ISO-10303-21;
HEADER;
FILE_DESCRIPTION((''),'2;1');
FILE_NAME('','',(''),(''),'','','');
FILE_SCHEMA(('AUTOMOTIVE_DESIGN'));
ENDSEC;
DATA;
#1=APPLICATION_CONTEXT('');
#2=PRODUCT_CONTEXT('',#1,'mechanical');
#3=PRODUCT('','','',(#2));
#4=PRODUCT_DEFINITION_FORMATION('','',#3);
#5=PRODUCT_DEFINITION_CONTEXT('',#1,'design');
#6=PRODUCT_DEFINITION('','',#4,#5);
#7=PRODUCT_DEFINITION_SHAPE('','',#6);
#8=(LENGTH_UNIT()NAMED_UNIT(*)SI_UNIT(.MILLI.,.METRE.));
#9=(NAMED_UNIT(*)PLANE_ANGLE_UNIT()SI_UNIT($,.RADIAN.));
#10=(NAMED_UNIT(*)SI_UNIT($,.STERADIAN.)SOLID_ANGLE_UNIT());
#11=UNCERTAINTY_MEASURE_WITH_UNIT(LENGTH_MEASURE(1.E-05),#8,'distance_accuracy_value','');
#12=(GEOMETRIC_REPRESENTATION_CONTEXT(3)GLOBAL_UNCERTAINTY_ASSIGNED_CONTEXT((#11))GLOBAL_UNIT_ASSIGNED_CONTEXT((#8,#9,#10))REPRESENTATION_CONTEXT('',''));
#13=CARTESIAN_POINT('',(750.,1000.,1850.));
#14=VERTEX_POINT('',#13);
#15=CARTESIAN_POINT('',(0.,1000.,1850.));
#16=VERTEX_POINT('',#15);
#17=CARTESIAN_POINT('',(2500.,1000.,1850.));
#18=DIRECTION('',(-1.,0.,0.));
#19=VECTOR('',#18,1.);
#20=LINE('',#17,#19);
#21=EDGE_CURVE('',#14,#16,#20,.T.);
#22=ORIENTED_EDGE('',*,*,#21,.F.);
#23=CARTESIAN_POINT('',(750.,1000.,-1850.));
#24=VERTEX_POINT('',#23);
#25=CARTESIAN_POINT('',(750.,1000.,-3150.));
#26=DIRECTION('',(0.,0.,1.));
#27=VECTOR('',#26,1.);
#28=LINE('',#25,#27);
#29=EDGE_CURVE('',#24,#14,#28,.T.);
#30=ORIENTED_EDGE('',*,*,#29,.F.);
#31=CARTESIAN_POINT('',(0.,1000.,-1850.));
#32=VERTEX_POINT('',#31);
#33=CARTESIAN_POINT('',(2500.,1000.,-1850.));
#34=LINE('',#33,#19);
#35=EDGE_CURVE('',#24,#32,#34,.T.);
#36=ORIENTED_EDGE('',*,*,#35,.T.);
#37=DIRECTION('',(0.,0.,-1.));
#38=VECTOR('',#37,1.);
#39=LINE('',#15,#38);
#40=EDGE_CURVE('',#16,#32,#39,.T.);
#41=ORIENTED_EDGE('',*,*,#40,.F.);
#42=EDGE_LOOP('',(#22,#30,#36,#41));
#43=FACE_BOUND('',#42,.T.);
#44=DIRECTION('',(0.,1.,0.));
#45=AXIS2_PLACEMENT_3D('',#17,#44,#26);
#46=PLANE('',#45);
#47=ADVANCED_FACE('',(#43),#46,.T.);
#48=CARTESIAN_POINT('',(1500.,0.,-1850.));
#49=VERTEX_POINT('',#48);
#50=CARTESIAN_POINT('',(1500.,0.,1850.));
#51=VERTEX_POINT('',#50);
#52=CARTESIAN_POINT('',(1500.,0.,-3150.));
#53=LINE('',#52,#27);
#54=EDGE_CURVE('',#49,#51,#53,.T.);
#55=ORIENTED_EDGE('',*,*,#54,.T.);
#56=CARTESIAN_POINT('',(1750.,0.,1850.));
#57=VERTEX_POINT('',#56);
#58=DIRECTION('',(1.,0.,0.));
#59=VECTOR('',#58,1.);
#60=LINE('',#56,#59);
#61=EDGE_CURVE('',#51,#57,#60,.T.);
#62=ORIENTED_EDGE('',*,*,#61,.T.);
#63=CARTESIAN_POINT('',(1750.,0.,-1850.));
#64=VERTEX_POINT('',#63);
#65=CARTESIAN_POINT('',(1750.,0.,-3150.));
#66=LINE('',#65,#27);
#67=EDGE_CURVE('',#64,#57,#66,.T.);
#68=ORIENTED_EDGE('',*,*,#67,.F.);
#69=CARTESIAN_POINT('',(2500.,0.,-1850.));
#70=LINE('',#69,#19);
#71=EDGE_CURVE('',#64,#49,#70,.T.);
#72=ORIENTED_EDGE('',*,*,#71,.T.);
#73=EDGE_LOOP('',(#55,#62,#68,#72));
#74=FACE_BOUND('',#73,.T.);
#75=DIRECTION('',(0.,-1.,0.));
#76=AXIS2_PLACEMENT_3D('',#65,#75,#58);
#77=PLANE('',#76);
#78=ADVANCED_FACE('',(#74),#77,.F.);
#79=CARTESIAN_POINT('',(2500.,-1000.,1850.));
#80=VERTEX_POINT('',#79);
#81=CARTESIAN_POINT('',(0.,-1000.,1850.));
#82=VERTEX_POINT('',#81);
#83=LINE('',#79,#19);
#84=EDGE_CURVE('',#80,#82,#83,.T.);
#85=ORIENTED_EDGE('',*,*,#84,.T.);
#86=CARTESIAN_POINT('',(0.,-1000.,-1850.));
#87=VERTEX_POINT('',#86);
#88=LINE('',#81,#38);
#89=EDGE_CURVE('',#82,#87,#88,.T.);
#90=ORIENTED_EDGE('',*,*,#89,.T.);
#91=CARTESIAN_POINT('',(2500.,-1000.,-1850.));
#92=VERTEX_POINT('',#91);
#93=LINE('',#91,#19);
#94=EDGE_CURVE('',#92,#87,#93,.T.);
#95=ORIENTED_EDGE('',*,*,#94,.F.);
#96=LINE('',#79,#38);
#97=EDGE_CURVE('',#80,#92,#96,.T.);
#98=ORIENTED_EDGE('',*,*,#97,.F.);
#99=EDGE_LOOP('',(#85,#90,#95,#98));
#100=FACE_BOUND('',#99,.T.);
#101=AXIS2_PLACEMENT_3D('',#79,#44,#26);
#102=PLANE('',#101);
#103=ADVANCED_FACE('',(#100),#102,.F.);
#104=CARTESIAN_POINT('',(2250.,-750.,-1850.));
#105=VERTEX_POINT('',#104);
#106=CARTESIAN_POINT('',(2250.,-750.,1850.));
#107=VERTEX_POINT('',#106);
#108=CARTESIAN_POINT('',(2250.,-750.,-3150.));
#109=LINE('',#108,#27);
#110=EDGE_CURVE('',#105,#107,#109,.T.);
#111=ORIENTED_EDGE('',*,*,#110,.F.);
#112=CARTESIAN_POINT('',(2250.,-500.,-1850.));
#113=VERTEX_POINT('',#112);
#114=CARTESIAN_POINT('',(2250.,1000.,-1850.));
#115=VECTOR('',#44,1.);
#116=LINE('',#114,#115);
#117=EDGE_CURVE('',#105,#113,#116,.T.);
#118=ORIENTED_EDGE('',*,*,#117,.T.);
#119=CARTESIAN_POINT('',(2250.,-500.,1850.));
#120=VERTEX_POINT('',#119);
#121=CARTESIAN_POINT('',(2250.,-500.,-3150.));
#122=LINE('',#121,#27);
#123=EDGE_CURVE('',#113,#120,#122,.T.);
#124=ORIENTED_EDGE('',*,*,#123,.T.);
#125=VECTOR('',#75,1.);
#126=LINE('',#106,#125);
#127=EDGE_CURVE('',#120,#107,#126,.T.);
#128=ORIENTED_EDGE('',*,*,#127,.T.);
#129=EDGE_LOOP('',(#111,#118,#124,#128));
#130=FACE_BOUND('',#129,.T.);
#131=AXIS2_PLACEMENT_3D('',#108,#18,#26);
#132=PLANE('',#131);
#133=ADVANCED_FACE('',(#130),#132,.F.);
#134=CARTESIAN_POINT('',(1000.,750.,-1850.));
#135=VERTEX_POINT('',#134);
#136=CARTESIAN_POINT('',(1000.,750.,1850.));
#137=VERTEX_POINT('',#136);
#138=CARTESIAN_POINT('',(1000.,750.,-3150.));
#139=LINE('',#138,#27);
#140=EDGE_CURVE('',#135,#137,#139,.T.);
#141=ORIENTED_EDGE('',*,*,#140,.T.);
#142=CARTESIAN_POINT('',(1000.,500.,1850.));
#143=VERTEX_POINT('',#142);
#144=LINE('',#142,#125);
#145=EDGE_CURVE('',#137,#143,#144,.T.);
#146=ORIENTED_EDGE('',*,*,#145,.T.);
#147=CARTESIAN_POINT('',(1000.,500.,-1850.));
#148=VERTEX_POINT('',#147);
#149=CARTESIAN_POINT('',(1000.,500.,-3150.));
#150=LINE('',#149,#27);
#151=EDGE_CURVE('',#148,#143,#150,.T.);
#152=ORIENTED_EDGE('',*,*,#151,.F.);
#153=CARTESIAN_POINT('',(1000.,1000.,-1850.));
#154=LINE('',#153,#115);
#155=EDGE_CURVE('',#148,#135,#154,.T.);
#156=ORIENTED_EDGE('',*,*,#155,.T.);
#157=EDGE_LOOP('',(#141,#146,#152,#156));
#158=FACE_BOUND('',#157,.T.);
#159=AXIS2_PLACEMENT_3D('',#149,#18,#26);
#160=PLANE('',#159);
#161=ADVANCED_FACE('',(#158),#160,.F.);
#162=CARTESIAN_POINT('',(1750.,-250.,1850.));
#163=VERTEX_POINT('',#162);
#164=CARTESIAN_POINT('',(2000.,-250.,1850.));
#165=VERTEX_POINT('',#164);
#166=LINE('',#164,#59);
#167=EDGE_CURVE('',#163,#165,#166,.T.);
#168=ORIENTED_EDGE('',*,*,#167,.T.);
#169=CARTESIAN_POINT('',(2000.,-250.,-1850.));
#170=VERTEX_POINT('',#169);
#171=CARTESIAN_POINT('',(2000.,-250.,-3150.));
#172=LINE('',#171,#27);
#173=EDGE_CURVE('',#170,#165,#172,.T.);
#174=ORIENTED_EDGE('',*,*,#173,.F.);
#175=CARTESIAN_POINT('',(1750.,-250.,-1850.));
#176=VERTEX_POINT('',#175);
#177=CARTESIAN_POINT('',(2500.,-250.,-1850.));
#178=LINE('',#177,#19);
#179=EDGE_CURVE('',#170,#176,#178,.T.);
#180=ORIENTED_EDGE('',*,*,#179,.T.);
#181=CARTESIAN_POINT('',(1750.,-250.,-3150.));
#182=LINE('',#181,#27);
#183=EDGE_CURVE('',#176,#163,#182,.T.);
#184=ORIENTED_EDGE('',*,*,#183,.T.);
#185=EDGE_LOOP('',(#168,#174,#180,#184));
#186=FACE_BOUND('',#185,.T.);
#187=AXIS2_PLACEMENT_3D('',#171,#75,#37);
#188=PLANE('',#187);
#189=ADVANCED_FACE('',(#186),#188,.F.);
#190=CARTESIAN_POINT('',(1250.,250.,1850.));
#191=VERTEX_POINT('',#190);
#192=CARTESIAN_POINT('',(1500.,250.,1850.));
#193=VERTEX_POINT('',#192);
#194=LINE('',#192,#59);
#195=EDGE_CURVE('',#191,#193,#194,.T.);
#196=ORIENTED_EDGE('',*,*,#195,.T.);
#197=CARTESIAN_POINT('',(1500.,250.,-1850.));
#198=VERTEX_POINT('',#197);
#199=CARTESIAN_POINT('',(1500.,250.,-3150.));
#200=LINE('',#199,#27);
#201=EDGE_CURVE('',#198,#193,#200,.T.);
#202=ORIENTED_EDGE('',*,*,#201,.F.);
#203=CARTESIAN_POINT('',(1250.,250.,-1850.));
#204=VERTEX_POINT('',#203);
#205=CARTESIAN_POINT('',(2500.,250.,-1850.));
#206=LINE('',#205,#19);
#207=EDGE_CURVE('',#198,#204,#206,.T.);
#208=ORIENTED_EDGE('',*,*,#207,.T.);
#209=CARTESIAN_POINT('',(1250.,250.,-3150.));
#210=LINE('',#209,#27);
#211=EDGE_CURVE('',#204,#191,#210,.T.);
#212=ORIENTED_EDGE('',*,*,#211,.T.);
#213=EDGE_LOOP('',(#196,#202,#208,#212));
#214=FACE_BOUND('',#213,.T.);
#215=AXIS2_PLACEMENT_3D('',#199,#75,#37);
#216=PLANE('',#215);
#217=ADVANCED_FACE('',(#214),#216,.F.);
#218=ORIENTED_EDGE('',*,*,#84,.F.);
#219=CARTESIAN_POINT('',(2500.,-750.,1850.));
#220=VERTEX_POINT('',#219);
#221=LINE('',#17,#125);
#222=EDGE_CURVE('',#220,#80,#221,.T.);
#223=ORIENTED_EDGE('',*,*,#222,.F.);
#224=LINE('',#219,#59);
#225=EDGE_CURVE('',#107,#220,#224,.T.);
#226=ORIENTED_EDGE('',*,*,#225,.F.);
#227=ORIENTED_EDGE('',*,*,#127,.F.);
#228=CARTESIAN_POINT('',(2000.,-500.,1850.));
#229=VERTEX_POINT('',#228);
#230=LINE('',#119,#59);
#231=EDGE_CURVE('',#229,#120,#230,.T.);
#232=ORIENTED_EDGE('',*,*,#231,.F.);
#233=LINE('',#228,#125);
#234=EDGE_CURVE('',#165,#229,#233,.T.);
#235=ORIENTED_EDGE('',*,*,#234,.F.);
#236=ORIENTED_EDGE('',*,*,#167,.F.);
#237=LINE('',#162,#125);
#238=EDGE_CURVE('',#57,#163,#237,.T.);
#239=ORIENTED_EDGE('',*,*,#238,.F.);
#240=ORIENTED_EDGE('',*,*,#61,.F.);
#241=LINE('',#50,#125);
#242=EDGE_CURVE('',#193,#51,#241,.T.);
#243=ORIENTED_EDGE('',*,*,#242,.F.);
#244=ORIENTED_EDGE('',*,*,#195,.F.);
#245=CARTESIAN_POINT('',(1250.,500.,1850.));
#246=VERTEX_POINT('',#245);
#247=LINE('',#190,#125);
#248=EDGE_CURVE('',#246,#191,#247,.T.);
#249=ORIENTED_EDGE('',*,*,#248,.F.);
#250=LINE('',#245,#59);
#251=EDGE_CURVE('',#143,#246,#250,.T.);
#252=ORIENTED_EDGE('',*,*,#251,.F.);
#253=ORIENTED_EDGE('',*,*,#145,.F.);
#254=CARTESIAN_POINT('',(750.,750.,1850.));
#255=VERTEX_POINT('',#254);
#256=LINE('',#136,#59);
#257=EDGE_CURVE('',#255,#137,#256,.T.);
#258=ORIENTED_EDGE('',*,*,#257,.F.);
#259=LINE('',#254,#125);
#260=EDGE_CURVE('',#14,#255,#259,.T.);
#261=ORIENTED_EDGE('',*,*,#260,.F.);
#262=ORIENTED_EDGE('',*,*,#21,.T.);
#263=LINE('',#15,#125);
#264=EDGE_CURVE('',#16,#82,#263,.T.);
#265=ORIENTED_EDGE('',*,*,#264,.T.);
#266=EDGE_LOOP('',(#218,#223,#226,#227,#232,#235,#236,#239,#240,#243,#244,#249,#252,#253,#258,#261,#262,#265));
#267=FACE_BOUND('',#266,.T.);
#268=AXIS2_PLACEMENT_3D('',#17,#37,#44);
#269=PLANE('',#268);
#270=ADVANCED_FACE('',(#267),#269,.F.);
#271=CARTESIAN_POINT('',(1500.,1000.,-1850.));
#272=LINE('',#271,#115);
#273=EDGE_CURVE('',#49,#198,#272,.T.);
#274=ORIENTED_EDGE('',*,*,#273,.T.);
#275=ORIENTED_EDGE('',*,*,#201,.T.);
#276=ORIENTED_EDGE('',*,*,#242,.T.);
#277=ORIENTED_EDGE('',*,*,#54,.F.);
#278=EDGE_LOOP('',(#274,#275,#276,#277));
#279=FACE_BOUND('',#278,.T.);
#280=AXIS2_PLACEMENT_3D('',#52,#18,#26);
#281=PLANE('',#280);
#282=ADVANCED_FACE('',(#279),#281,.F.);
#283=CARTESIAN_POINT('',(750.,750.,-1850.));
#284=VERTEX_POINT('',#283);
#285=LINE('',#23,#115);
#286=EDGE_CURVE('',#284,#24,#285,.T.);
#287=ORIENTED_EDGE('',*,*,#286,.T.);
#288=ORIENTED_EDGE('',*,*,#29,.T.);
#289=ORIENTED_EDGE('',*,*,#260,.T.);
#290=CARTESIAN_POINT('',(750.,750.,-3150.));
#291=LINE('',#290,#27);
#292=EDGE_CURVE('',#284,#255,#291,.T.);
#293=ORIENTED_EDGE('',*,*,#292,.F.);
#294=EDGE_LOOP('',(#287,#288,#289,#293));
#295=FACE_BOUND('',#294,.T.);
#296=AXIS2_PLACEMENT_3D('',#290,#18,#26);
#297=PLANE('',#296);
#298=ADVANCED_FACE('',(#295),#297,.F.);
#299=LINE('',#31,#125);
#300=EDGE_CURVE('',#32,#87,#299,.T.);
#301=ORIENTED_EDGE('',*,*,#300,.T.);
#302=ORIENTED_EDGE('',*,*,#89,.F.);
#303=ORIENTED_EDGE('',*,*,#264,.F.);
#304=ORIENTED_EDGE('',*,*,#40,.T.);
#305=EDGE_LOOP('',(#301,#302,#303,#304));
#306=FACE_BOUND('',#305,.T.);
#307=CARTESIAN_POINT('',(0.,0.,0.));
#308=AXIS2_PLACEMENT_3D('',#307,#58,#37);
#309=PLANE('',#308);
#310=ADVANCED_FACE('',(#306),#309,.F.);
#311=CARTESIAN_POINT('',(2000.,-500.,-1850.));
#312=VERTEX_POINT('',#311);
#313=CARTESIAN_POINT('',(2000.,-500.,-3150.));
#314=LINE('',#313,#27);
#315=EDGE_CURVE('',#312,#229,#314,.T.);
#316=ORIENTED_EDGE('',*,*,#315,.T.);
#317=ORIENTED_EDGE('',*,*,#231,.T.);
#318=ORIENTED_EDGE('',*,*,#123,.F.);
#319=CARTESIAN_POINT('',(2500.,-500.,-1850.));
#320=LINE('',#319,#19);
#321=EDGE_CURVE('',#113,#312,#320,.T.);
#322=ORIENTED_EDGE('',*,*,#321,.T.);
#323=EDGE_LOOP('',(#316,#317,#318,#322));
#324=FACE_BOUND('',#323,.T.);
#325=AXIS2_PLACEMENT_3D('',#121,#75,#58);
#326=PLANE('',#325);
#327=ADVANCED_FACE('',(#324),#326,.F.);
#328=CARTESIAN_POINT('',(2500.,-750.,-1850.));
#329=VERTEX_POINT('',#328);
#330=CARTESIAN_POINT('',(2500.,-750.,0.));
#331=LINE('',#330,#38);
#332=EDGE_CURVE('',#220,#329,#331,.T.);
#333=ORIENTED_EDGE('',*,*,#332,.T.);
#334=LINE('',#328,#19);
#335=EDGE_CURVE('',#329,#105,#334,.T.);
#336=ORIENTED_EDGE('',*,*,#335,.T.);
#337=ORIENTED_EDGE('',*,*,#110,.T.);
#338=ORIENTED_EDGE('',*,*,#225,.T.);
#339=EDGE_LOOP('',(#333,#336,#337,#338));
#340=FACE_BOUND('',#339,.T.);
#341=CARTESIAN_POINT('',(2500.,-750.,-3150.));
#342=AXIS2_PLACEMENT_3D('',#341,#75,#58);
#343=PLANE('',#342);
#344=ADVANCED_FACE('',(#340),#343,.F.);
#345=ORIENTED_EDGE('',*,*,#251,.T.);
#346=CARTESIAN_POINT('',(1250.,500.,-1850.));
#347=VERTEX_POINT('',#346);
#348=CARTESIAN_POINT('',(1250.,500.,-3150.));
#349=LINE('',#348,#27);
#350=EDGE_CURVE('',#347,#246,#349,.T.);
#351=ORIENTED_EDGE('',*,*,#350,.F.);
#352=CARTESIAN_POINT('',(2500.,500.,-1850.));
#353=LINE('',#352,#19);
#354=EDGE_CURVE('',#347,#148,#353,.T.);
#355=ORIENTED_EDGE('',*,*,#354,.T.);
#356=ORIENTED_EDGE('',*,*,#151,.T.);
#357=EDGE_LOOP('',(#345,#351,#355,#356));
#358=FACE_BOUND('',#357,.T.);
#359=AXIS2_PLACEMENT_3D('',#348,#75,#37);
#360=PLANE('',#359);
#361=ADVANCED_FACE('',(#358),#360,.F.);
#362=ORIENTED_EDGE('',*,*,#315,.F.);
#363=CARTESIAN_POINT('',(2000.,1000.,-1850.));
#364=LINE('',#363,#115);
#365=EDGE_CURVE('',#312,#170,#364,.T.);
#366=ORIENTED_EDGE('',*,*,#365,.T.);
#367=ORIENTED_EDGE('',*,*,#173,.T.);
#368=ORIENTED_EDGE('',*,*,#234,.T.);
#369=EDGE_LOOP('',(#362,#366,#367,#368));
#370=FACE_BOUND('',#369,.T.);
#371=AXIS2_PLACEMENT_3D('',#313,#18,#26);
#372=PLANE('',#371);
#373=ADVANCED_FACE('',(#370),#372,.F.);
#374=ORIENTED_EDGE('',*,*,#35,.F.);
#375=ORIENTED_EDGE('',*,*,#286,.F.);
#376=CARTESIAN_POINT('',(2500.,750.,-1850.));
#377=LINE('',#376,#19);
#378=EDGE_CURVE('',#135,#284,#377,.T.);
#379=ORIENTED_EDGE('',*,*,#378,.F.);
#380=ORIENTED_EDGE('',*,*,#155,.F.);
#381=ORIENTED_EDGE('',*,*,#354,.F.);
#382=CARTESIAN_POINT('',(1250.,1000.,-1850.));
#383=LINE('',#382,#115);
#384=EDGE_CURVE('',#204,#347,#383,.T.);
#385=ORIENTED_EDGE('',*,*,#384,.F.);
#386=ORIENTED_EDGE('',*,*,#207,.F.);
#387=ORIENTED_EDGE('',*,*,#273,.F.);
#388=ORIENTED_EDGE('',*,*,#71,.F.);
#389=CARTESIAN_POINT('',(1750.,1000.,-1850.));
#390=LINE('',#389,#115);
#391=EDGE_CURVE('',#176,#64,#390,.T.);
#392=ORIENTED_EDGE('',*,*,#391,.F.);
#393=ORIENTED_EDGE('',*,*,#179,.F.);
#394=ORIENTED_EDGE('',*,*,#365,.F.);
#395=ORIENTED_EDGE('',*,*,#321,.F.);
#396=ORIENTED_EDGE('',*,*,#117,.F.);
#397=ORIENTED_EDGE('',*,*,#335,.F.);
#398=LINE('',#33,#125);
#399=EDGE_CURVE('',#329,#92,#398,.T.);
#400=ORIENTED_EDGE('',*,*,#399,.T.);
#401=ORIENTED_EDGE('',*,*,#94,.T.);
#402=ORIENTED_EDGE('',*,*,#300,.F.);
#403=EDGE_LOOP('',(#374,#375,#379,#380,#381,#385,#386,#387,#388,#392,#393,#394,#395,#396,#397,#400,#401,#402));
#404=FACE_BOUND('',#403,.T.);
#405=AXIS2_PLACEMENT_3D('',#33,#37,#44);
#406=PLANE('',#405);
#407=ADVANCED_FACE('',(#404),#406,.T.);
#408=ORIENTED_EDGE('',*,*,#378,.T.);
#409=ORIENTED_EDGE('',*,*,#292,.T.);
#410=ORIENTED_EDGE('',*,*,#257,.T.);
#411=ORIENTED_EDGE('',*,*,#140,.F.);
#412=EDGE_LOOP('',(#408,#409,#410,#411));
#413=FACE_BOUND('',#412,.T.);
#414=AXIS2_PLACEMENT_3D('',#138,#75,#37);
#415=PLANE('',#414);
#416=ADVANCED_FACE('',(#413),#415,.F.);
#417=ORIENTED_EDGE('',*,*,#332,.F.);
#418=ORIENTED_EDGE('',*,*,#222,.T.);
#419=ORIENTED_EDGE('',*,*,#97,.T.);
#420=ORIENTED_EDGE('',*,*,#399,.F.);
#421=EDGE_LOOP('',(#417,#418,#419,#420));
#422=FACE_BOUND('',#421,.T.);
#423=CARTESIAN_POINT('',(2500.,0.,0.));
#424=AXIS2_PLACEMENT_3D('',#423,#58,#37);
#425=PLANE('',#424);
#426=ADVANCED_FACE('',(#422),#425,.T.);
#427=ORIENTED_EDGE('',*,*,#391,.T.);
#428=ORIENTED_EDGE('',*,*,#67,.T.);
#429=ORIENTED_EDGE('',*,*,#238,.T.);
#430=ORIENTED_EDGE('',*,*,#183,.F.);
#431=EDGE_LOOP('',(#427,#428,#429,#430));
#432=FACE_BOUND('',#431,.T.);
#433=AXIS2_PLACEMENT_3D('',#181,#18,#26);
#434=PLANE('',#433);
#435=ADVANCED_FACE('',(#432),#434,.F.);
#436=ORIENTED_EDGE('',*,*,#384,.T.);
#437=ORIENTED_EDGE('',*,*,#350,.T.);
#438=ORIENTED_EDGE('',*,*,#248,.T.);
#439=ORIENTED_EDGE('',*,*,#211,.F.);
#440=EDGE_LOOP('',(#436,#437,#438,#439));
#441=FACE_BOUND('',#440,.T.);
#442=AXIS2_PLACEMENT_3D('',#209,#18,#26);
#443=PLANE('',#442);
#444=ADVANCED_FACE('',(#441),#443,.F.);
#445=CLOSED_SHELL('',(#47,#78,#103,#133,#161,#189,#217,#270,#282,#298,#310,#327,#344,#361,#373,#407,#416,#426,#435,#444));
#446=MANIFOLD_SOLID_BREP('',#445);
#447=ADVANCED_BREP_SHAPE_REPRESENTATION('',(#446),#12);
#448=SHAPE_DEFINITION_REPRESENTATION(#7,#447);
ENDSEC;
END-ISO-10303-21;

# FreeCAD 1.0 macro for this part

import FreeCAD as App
import Part
import Sketcher

V = App.Vector

doc = App.newDocument("Part")
body = doc.addObject("PartDesign::Body", "Body")

sketch1 = body.newObject("Sketcher::SketchObject", "Sketch")
sketch1.AttachmentSupport = (doc.getObject("YZ_Plane"), [""])
sketch1.MapMode = "FlatFace"
sketch1.addGeometry([
    Part.LineSegment(V(1000, 1850, 0), V(-1000, 1850, 0)),
    Part.LineSegment(V(-1000, 1850, 0), V(-1000, -1850, 0)),
    Part.LineSegment(V(-1000, -1850, 0), V(1000, -1850, 0)),
    Part.LineSegment(V(1000, -1850, 0), V(1000, 1850, 0)),
], False)
sketch1.addConstraint([
    Sketcher.Constraint("Coincident", 0, 2, 1, 1),
    Sketcher.Constraint("Coincident", 1, 2, 2, 1),
    Sketcher.Constraint("Coincident", 2, 2, 3, 1),
    Sketcher.Constraint("Coincident", 3, 2, 0, 1),
    Sketcher.Constraint("Horizontal", 0),
    Sketcher.Constraint("Vertical", 1),
    Sketcher.Constraint("Horizontal", 2),
    Sketcher.Constraint("Vertical", 3),
    Sketcher.Constraint("Symmetric", 0, 2, 2, 2, -1, 1),
    Sketcher.Constraint("DistanceX", 0, 2, 0, 1, 2000.0),
    Sketcher.Constraint("DistanceY", 1, 2, 1, 1, 3700.0),
])
pad1 = body.newObject("PartDesign::Pad", "Pad")
pad1.Profile = sketch1
pad1.Length = 2500

sketch2 = body.newObject("Sketcher::SketchObject", "Sketch001")
sketch2.AttachmentSupport = (doc.getObject("XY_Plane"), [""])
sketch2.MapMode = "FlatFace"
sketch2.AttachmentOffset = App.Placement(V(0, 0, 1850), App.Rotation())
sketch2.addGeometry([
    Part.LineSegment(V(2250, -750, 0), V(2500, -750, 0)),
    Part.LineSegment(V(2500, -750, 0), V(2500, 1000, 0)),
    Part.LineSegment(V(2500, 1000, 0), V(750, 1000, 0)),
    Part.LineSegment(V(750, 1000, 0), V(750, 750, 0)),
    Part.LineSegment(V(750, 750, 0), V(1000, 750, 0)),
    Part.LineSegment(V(1000, 750, 0), V(1000, 500, 0)),
    Part.LineSegment(V(1000, 500, 0), V(1250, 500, 0)),
    Part.LineSegment(V(1250, 500, 0), V(1250, 250, 0)),
    Part.LineSegment(V(1250, 250, 0), V(1500, 250, 0)),
    Part.LineSegment(V(1500, 250, 0), V(1500, 0, 0)),
    Part.LineSegment(V(1500, 0, 0), V(1750, 0, 0)),
    Part.LineSegment(V(1750, 0, 0), V(1750, -250, 0)),
    Part.LineSegment(V(1750, -250, 0), V(2000, -250, 0)),
    Part.LineSegment(V(2000, -250, 0), V(2000, -500, 0)),
    Part.LineSegment(V(2000, -500, 0), V(2250, -500, 0)),
    Part.LineSegment(V(2250, -500, 0), V(2250, -750, 0)),
], False)
sketch2.addConstraint([
    Sketcher.Constraint("Coincident", 0, 2, 1, 1),
    Sketcher.Constraint("Coincident", 1, 2, 2, 1),
    Sketcher.Constraint("Coincident", 2, 2, 3, 1),
    Sketcher.Constraint("Coincident", 3, 2, 4, 1),
    Sketcher.Constraint("Coincident", 4, 2, 5, 1),
    Sketcher.Constraint("Coincident", 5, 2, 6, 1),
    Sketcher.Constraint("Coincident", 6, 2, 7, 1),
    Sketcher.Constraint("Coincident", 7, 2, 8, 1),
    Sketcher.Constraint("Coincident", 8, 2, 9, 1),
    Sketcher.Constraint("Coincident", 9, 2, 10, 1),
    Sketcher.Constraint("Coincident", 10, 2, 11, 1),
    Sketcher.Constraint("Coincident", 11, 2, 12, 1),
    Sketcher.Constraint("Coincident", 12, 2, 13, 1),
    Sketcher.Constraint("Coincident", 13, 2, 14, 1),
    Sketcher.Constraint("Coincident", 14, 2, 15, 1),
    Sketcher.Constraint("Coincident", 15, 2, 0, 1),
    Sketcher.Constraint("Horizontal", 0),
    Sketcher.Constraint("Vertical", 1),
    Sketcher.Constraint("Horizontal", 2),
    Sketcher.Constraint("Vertical", 3),
    Sketcher.Constraint("Horizontal", 4),
    Sketcher.Constraint("Vertical", 5),
    Sketcher.Constraint("Horizontal", 6),
    Sketcher.Constraint("Vertical", 7),
    Sketcher.Constraint("Horizontal", 8),
    Sketcher.Constraint("Vertical", 9),
    Sketcher.Constraint("Horizontal", 10),
    Sketcher.Constraint("Vertical", 11),
    Sketcher.Constraint("Horizontal", 12),
    Sketcher.Constraint("Vertical", 13),
    Sketcher.Constraint("Horizontal", 14),
    Sketcher.Constraint("Vertical", 15),
    Sketcher.Constraint("PointOnObject", 9, 2, -1),
    Sketcher.Constraint("Equal", 0, 4),
    Sketcher.Constraint("Equal", 4, 6),
    Sketcher.Constraint("Equal", 6, 8),
    Sketcher.Constraint("Equal", 8, 10),
    Sketcher.Constraint("Equal", 10, 12),
    Sketcher.Constraint("Equal", 12, 14),
    Sketcher.Constraint("Equal", 2, 1),
    Sketcher.Constraint("Equal", 14, 3),
    Sketcher.Constraint("Equal", 3, 5),
    Sketcher.Constraint("Equal", 5, 7),
    Sketcher.Constraint("Equal", 7, 9),
    Sketcher.Constraint("Equal", 9, 11),
    Sketcher.Constraint("Equal", 11, 13),
    Sketcher.Constraint("DistanceX", 0, 1, 0, 2, 250.0),
    Sketcher.Constraint("DistanceX", -1, 1, 0, 2, 2500.0),
])
pocket1 = body.newObject("PartDesign::Pocket", "Pocket")
pocket1.Profile = sketch2
pocket1.Length = 5000

doc.recompute()
